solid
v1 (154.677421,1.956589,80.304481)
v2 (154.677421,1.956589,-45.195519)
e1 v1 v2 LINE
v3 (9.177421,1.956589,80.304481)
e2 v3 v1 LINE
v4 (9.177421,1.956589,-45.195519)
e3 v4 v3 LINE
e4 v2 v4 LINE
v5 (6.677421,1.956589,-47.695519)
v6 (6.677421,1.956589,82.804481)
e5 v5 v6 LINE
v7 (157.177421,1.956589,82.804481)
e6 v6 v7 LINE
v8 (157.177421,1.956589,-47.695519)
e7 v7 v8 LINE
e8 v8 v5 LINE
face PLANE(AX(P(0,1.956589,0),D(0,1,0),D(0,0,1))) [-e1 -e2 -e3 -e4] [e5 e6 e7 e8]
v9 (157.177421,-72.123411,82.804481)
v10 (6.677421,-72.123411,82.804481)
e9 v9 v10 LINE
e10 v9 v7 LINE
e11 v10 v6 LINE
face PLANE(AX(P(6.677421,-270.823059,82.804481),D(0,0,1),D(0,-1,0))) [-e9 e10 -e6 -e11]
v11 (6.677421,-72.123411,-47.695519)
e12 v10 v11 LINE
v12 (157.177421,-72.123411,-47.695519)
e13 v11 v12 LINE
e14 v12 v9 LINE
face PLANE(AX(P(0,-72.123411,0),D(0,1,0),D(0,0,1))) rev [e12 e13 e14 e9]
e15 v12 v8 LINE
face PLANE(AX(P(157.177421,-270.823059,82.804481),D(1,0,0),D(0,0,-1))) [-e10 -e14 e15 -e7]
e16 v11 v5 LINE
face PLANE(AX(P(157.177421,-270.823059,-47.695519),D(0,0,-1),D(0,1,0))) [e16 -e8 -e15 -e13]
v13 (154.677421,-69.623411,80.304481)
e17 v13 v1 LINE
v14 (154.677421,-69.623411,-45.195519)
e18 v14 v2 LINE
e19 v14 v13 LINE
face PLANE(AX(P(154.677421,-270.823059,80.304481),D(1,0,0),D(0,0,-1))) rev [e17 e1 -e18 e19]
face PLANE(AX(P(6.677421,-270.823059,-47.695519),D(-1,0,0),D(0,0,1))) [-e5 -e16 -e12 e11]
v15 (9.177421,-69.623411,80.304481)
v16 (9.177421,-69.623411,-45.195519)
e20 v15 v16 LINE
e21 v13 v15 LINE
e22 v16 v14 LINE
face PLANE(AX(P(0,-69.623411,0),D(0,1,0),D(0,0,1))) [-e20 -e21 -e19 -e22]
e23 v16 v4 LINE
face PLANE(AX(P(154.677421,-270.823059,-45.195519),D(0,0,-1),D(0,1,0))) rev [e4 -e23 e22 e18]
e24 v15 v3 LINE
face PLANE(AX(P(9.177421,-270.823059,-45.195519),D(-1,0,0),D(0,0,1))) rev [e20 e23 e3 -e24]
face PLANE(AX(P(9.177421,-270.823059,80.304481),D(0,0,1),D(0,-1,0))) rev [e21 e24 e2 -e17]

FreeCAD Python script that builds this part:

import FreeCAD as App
import Part
import Sketcher

V = App.Vector
Q = App.Units.Quantity


def add_polygon(sketch, points):
    """Adds a closed chain of lines whose ends are joined by coincident constraints."""
    first, n = sketch.GeometryCount, len(points)
    for a, b in zip(points, points[1:] + points[:1]):
        sketch.addGeometry(Part.LineSegment(App.Vector(*a, 0), App.Vector(*b, 0)), False)
    for i in range(n):
        sketch.addConstraint(Sketcher.Constraint("Coincident", first + i, 2, first + (i + 1) % n, 1))

doc = App.newDocument("Part")
body = doc.addObject("PartDesign::Body", "Body")

sketch1 = doc.addObject("Sketcher::SketchObject", "Sketch")
body.addObject(sketch1)
sketch1.AttachmentSupport = (doc.XZ_Plane, [""])
sketch1.MapMode = "FlatFace"
sketch1.AttachmentOffset = App.Placement(V(0, 0, -1.956589), App.Rotation())
add_polygon(sketch1, [(7, -48), (7, 83), (157, 83), (157, -48)])
add_polygon(sketch1, [(155, 80), (9, 80), (9, -45), (155, -45)])
sketch1.addConstraint(Sketcher.Constraint("Vertical", 0))
sketch1.addConstraint(Sketcher.Constraint("Horizontal", 1))
sketch1.addConstraint(Sketcher.Constraint("Vertical", 2))
sketch1.addConstraint(Sketcher.Constraint("Horizontal", 3))
sketch1.addConstraint(Sketcher.Constraint("Horizontal", 4))
sketch1.addConstraint(Sketcher.Constraint("Vertical", 5))
sketch1.addConstraint(Sketcher.Constraint("Horizontal", 6))
sketch1.addConstraint(Sketcher.Constraint("Vertical", 7))
sketch1.addConstraint(Sketcher.Constraint("DistanceX", 1, 1, 1, 2, Q("150.5 mm")))
sketch1.addConstraint(Sketcher.Constraint("DistanceX", 4, 2, 4, 1, Q("145.5 mm")))
sketch1.addConstraint(Sketcher.Constraint("DistanceY", 0, 1, 0, 2, Q("130.5 mm")))
sketch1.addConstraint(Sketcher.Constraint("DistanceY", 5, 2, 5, 1, Q("125.5 mm")))
sketch1.addConstraint(Sketcher.Constraint("DistanceY", 3, 2, 4, 2, Q("128 mm")))
sketch1.addConstraint(Sketcher.Constraint("DistanceX", 4, 2, 1, 2, Q("148 mm")))
sketch1.addConstraint(Sketcher.Constraint("DistanceX", -1, 1, 0, 2, Q("6.677421 mm")))
sketch1.addConstraint(Sketcher.Constraint("DistanceY", -1, 1, 0, 2, Q("82.804481 mm")))
pad1 = doc.addObject("PartDesign::Pad", "Pad")
body.addObject(pad1)
pad1.Profile = sketch1
pad1.Length = 71.58

sketch2 = doc.addObject("Sketcher::SketchObject", "Sketch001")
body.addObject(sketch2)
sketch2.AttachmentSupport = (doc.XZ_Plane, [""])
sketch2.MapMode = "FlatFace"
sketch2.AttachmentOffset = App.Placement(V(0, 0, 69.623411), App.Rotation())
add_polygon(sketch2, [(157, -48), (157, 83), (7, 83), (7, -48)])
sketch2.addConstraint(Sketcher.Constraint("Vertical", 0))
sketch2.addConstraint(Sketcher.Constraint("Horizontal", 1))
sketch2.addConstraint(Sketcher.Constraint("Vertical", 2))
sketch2.addConstraint(Sketcher.Constraint("Horizontal", 3))
sketch2.addConstraint(Sketcher.Constraint("DistanceX", 1, 2, 1, 1, Q("150.5 mm")))
sketch2.addConstraint(Sketcher.Constraint("DistanceY", 0, 1, 0, 2, Q("130.5 mm")))
sketch2.addConstraint(Sketcher.Constraint("DistanceX", -1, 1, 0, 2, Q("157.177421 mm")))
sketch2.addConstraint(Sketcher.Constraint("DistanceY", -1, 1, 0, 2, Q("82.804481 mm")))
pad2 = doc.addObject("PartDesign::Pad", "Pad001")
body.addObject(pad2)
pad2.Profile = sketch2
pad2.Length = 2.5

doc.recompute()
